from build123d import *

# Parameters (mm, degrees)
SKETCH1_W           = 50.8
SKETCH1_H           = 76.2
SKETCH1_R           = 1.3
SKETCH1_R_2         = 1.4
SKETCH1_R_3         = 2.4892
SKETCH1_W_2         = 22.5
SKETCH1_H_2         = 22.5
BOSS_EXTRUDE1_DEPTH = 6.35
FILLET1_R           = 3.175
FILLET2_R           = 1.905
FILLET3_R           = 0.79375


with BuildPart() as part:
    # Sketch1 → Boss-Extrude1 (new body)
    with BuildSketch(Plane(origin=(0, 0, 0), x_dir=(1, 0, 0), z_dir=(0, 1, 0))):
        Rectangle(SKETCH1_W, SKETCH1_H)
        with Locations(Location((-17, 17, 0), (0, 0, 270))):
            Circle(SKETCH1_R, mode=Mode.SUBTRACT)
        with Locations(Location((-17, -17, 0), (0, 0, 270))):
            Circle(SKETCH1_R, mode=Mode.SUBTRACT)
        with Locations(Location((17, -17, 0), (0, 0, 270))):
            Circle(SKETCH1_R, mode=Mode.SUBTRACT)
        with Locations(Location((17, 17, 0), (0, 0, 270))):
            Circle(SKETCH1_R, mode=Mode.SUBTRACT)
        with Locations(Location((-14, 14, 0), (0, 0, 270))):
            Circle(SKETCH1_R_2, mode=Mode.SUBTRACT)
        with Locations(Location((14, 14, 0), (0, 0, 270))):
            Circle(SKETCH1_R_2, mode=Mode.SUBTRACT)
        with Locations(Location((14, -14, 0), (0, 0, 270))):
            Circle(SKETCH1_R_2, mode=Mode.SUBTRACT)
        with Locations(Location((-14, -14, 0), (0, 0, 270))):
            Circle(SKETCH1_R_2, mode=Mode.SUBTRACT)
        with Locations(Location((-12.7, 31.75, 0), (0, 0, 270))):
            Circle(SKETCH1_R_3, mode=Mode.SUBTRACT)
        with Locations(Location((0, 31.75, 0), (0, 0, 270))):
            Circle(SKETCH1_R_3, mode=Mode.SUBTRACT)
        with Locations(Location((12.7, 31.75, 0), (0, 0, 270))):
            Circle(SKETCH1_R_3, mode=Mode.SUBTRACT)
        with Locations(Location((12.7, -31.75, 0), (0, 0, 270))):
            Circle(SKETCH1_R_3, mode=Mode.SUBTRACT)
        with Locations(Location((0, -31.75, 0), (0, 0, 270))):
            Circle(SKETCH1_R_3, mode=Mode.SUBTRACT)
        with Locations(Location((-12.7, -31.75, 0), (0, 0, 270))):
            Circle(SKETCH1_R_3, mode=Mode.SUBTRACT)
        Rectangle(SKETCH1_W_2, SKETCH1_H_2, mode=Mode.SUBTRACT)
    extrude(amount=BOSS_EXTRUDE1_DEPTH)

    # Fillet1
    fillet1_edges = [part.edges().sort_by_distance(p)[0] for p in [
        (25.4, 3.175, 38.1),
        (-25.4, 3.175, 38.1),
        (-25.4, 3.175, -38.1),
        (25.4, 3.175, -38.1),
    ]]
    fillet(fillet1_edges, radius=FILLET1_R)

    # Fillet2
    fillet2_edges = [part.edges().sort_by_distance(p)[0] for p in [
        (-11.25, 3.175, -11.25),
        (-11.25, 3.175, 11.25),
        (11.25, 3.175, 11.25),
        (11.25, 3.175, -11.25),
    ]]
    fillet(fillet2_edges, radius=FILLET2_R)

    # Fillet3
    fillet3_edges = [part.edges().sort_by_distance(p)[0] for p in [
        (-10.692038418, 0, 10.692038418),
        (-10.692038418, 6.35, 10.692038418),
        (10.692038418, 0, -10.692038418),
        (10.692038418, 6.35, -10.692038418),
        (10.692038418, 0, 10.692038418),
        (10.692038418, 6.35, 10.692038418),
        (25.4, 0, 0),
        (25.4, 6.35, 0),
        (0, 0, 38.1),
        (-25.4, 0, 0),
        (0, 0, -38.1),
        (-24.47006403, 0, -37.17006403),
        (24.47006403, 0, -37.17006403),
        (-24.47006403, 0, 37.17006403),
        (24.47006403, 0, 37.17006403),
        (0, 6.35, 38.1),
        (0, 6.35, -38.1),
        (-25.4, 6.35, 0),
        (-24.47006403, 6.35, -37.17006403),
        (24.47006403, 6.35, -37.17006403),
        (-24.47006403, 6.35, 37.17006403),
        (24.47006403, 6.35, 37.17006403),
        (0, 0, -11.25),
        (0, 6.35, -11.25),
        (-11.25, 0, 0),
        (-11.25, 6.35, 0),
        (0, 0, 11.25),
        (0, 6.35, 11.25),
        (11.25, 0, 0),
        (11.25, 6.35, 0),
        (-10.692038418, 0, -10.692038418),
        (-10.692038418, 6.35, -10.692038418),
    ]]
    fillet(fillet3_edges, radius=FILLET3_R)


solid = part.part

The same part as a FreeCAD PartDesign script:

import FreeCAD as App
import Part
import Sketcher
Q = App.Units.Quantity


def edges_at(feature, points):
    """Names of the edges that pass closest to the given points."""
    edges = feature.Shape.Edges
    near = lambda p: min(range(len(edges)), key=lambda i: edges[i].distToShape(Part.Vertex(*p))[0])
    return sorted({f"Edge{near(p) + 1}" for p in points})


def add_polygon(sketch, points):
    """Adds a closed chain of lines whose ends are joined by coincident constraints."""
    first, n = sketch.GeometryCount, len(points)
    for a, b in zip(points, points[1:] + points[:1]):
        sketch.addGeometry(Part.LineSegment(App.Vector(*a, 0), App.Vector(*b, 0)), False)
    for i in range(n):
        sketch.addConstraint(Sketcher.Constraint("Coincident", first + i, 2, first + (i + 1) % n, 1))

doc = App.newDocument("Part")
body = doc.addObject("PartDesign::Body", "Body")

sketch1 = body.newObject("Sketcher::SketchObject", "Sketch")
sketch1.AttachmentSupport = (doc.getObject("XZ_Plane"), [""])
sketch1.MapMode = "FlatFace"
add_polygon(sketch1, [(-25.4, -38.1), (-25.4, 38.1), (25.4, 38.1), (25.4, -38.1)])
sketch1.addGeometry(Part.Circle(App.Vector(-12.7, 31.8, 0), App.Vector(0, 0, 1), 2.5), False)
sketch1.addGeometry(Part.Circle(App.Vector(-17, 17, 0), App.Vector(0, 0, 1), 1.3), False)
sketch1.addGeometry(Part.Circle(App.Vector(-14, 14, 0), App.Vector(0, 0, 1), 1.4), False)
sketch1.addGeometry(Part.Circle(App.Vector(0, 31.8, 0), App.Vector(0, 0, 1), 2.5), False)
sketch1.addGeometry(Part.Circle(App.Vector(12.7, 31.8, 0), App.Vector(0, 0, 1), 2.5), False)
sketch1.addGeometry(Part.Circle(App.Vector(14, 14, 0), App.Vector(0, 0, 1), 1.4), False)
sketch1.addGeometry(Part.Circle(App.Vector(17, 17, 0), App.Vector(0, 0, 1), 1.3), False)
sketch1.addGeometry(Part.Circle(App.Vector(-17, -17, 0), App.Vector(0, 0, 1), 1.3), False)
sketch1.addGeometry(Part.Circle(App.Vector(-14, -14, 0), App.Vector(0, 0, 1), 1.4), False)
sketch1.addGeometry(Part.Circle(App.Vector(-12.7, -31.8, 0), App.Vector(0, 0, 1), 2.5), False)
add_polygon(sketch1, [(11.2, 11.2), (-11.2, 11.2), (-11.2, -11.2), (11.2, -11.2)])
sketch1.addGeometry(Part.Circle(App.Vector(14, -14, 0), App.Vector(0, 0, 1), 1.4), False)
sketch1.addGeometry(Part.Circle(App.Vector(17, -17, 0), App.Vector(0, 0, 1), 1.3), False)
sketch1.addGeometry(Part.Circle(App.Vector(0, -31.8, 0), App.Vector(0, 0, 1), 2.5), False)
sketch1.addGeometry(Part.Circle(App.Vector(12.7, -31.8, 0), App.Vector(0, 0, 1), 2.5), False)
sketch1.addConstraint([
    Sketcher.Constraint("Vertical", 0),
    Sketcher.Constraint("Horizontal", 1),
    Sketcher.Constraint("Vertical", 2),
    Sketcher.Constraint("Horizontal", 3),
    Sketcher.Constraint("Horizontal", 14),
    Sketcher.Constraint("Vertical", 15),
    Sketcher.Constraint("Horizontal", 16),
    Sketcher.Constraint("Vertical", 17),
    Sketcher.Constraint("Equal", 4, 7),
    Sketcher.Constraint("Equal", 7, 8),
    Sketcher.Constraint("Equal", 6, 9),
    Sketcher.Constraint("Equal", 5, 10),
    Sketcher.Constraint("Equal", 10, 11),
    Sketcher.Constraint("Equal", 9, 12),
    Sketcher.Constraint("Equal", 8, 13),
    Sketcher.Constraint("Equal", 12, 18),
    Sketcher.Constraint("Equal", 11, 19),
    Sketcher.Constraint("Equal", 13, 20),
    Sketcher.Constraint("Equal", 20, 21),
    Sketcher.Constraint("Symmetric", 10, 3, 11, 3, -1, 1),
    Sketcher.Constraint("Symmetric", 9, 3, 12, 3, -1, 1),
    Sketcher.Constraint("Symmetric", 8, 3, 13, 3, -1, 1),
    Sketcher.Constraint("Symmetric", 6, 3, 18, 3, -1, 1),
    Sketcher.Constraint("Symmetric", 5, 3, 19, 3, -1, 1),
    Sketcher.Constraint("Symmetric", 7, 3, 20, 3, -1, 1),
    Sketcher.Constraint("Symmetric", 4, 3, 21, 3, -1, 1),
    Sketcher.Constraint("Symmetric", 0, 2, 2, 2, -1, 1),
    Sketcher.Constraint("Symmetric", 14, 2, 16, 2, -1, 1),
    Sketcher.Constraint("Symmetric", 4, 3, 8, 3, -2),
    Sketcher.Constraint("Symmetric", 6, 3, 9, 3, -2),
    Sketcher.Constraint("Symmetric", 5, 3, 10, 3, -2),
    Sketcher.Constraint("PointOnObject", 7, 3, -2),
    Sketcher.Constraint("Horizontal", 4, 3, 7, 3),
    Sketcher.Constraint("Equal", 16, 15),
    Sketcher.Constraint("DistanceX", 1, 1, 1, 2, Q("2 in")),
    Sketcher.Constraint("DistanceY", 0, 1, 0, 2, Q("3 in")),
    Sketcher.Constraint("Diameter", 4, Q("0.196 in")),
    Sketcher.Constraint("DistanceX", 4, 3, 8, 3, Q("1 in")),
    Sketcher.Constraint("Diameter", 5, Q("2.6 mm")),
    Sketcher.Constraint("Diameter", 6, Q("2.8 mm")),
    Sketcher.Constraint("DistanceY", -1, 1, 4, 3, Q("1.25 in")),
    Sketcher.Constraint("DistanceX", 14, 2, 14, 1, Q("22.5 mm")),
    Sketcher.Constraint("DistanceX", 5, 3, -1, 1, Q("17 mm")),
    Sketcher.Constraint("DistanceY", -1, 1, 5, 3, Q("17 mm")),
    Sketcher.Constraint("DistanceX", 6, 3, -1, 1, Q("14 mm")),
    Sketcher.Constraint("DistanceY", -1, 1, 6, 3, Q("14 mm")),
])
pad1 = body.newObject("PartDesign::Pad", "Pad")
pad1.Profile = sketch1
pad1.Length = Q("0.25 in")
pad1.Reversed = True
doc.recompute()

fillet = body.newObject("PartDesign::Fillet", "Fillet")
fillet.Base = (pad1, edges_at(pad1, [
    (25.4, 3.175, 38.1),
    (-25.4, 3.175, 38.1),
    (-25.4, 3.175, -38.1),
    (25.4, 3.175, -38.1),
]))
fillet.Radius = Q("0.125 in")
doc.recompute()

fillet2 = body.newObject("PartDesign::Fillet", "Fillet001")
fillet2.Base = (fillet, edges_at(fillet, [
    (-11.25, 3.175, -11.25),
    (-11.25, 3.175, 11.25),
    (11.25, 3.175, 11.25),
    (11.25, 3.175, -11.25),
]))
fillet2.Radius = Q("0.075 in")
doc.recompute()

fillet3 = body.newObject("PartDesign::Fillet", "Fillet002")
fillet3.Base = (fillet2, edges_at(fillet2, [
    (-10.692, 0, 10.692),
    (-10.692, 6.35, 10.692),
    (10.692, 0, -10.692),
    (10.692, 6.35, -10.692),
    (10.692, 0, 10.692),
    (10.692, 6.35, 10.692),
    (25.4, 0, 0),
    (25.4, 6.35, 0),
    (0, 0, 38.1),
    (-25.4, 0, 0),
    (0, 0, -38.1),
    (-24.47, 0, -37.17),
    (24.47, 0, -37.17),
    (-24.47, 0, 37.17),
    (24.47, 0, 37.17),
    (0, 6.35, 38.1),
    (0, 6.35, -38.1),
    (-25.4, 6.35, 0),
    (-24.47, 6.35, -37.17),
    (24.47, 6.35, -37.17),
    (-24.47, 6.35, 37.17),
    (24.47, 6.35, 37.17),
    (0, 0, -11.25),
    (0, 6.35, -11.25),
    (-11.25, 0, 0),
    (-11.25, 6.35, 0),
    (0, 0, 11.25),
    (0, 6.35, 11.25),
    (11.25, 0, 0),
    (11.25, 6.35, 0),
    (-10.692, 0, -10.692),
    (-10.692, 6.35, -10.692),
]))
fillet3.Radius = Q("0.03125 in")

doc.recompute()
